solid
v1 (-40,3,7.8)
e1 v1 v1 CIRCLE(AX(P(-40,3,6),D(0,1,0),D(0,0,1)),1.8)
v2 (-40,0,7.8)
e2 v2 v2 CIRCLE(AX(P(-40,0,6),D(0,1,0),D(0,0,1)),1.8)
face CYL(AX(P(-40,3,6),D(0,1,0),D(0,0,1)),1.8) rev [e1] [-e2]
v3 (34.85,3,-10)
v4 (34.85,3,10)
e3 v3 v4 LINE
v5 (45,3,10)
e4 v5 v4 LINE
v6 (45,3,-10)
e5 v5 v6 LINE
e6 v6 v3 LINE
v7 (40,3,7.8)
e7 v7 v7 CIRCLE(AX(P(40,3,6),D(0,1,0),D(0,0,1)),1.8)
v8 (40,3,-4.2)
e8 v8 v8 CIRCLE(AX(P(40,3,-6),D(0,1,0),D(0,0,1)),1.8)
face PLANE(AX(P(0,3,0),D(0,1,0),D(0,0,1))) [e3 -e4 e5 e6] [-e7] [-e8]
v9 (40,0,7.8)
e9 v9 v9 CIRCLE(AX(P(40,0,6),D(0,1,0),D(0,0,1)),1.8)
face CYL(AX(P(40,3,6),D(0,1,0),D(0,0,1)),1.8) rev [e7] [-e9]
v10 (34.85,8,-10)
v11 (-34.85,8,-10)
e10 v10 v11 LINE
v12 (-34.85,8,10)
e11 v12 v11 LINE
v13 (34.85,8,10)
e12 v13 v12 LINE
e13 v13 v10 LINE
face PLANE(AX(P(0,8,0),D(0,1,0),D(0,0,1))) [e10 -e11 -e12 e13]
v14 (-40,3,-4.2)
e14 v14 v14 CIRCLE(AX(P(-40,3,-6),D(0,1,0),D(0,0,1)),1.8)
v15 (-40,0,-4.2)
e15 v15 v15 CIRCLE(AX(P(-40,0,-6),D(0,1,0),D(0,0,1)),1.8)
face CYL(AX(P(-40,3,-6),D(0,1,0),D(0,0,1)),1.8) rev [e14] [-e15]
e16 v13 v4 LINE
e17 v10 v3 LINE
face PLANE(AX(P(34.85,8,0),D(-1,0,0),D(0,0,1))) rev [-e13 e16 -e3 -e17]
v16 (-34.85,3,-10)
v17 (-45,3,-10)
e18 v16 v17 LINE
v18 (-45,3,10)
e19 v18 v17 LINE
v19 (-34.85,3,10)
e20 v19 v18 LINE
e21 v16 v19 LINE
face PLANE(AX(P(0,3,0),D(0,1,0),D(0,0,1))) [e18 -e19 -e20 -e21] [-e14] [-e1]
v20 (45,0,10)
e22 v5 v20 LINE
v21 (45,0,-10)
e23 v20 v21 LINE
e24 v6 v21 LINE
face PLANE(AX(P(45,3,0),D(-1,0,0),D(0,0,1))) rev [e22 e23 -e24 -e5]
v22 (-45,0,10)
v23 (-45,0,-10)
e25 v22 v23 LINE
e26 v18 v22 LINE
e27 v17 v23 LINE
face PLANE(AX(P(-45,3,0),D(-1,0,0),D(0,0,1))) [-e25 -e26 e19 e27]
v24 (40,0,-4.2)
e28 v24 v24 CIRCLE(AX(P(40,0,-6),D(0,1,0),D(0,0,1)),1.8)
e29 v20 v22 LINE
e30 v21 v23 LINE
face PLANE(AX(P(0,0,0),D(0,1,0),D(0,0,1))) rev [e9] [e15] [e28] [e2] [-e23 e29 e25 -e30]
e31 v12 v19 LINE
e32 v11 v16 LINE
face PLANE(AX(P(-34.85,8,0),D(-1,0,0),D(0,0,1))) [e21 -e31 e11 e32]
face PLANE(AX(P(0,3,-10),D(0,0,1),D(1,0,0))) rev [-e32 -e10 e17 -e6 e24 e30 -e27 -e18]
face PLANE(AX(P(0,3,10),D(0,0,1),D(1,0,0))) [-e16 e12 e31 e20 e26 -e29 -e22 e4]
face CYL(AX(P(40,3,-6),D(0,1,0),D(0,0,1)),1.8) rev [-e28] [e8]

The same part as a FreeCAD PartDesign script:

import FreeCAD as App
import Part
import Sketcher


def add_polygon(sketch, points):
    """Adds a closed chain of lines whose ends are joined by coincident constraints."""
    first, n = sketch.GeometryCount, len(points)
    for a, b in zip(points, points[1:] + points[:1]):
        sketch.addGeometry(Part.LineSegment(App.Vector(*a, 0), App.Vector(*b, 0)), False)
    for i in range(n):
        sketch.addConstraint(Sketcher.Constraint("Coincident", first + i, 2, first + (i + 1) % n, 1))

doc = App.newDocument("Part")
body = doc.addObject("PartDesign::Body", "Body")

# Sketch on XZ plane
sketch1 = body.newObject("Sketcher::SketchObject", "Sketch")
sketch1.AttachmentSupport = (doc.getObject("XZ_Plane"), [""])
sketch1.MapMode = "FlatFace"
add_polygon(sketch1, [(-45, -10), (-45, 10), (45, 10), (45, -10)])  # lines 0-3
sketch1.addConstraint(Sketcher.Constraint("Vertical", 0))
sketch1.addConstraint(Sketcher.Constraint("Horizontal", 1))
sketch1.addConstraint(Sketcher.Constraint("Vertical", 2))
sketch1.addConstraint(Sketcher.Constraint("Horizontal", 3))
sketch1.addConstraint(Sketcher.Constraint("Symmetric", 0, 2, 2, 2, -1, 1))
sketch1.addConstraint(Sketcher.Constraint("DistanceX", 1, 1, 1, 2, 90.0))
sketch1.addConstraint(Sketcher.Constraint("DistanceY", 0, 1, 0, 2, 20.0))
pad1 = body.newObject("PartDesign::Pad", "Pad")
pad1.Profile = sketch1
pad1.Length = 3
pad1.Reversed = True

# Sketch on XZ plane
sketch2 = body.newObject("Sketcher::SketchObject", "Sketch001")
sketch2.AttachmentSupport = (doc.getObject("XZ_Plane"), [""])
sketch2.MapMode = "FlatFace"
add_polygon(sketch2, [(-34.85, -10), (-34.85, 10), (34.85, 10), (34.85, -10)])  # lines 0-3
sketch2.addConstraint(Sketcher.Constraint("Vertical", 0))
sketch2.addConstraint(Sketcher.Constraint("Horizontal", 1))
sketch2.addConstraint(Sketcher.Constraint("Vertical", 2))
sketch2.addConstraint(Sketcher.Constraint("Horizontal", 3))
sketch2.addConstraint(Sketcher.Constraint("Symmetric", 0, 2, 2, 2, -1, 1))
sketch2.addConstraint(Sketcher.Constraint("DistanceY", 0, 1, 0, 2, 20.0))
sketch2.addConstraint(Sketcher.Constraint("DistanceX", 1, 1, 1, 2, 69.7))
pad2 = body.newObject("PartDesign::Pad", "Pad001")
pad2.Profile = sketch2
pad2.Length = 8
pad2.Reversed = True

# Sketch on XZ plane
sketch3 = body.newObject("Sketcher::SketchObject", "Sketch002")
sketch3.AttachmentSupport = (doc.getObject("XZ_Plane"), [""])
sketch3.MapMode = "FlatFace"
sketch3.AttachmentOffset = App.Placement(App.Vector(0, 0, -3), App.Rotation())
sketch3.addGeometry(Part.Circle(App.Vector(-40, -6, 0), App.Vector(0, 0, 1), 1.8), False)
sketch3.addGeometry(Part.Circle(App.Vector(-40, 6, 0), App.Vector(0, 0, 1), 1.8), False)
sketch3.addGeometry(Part.Circle(App.Vector(40, 6, 0), App.Vector(0, 0, 1), 1.8), False)
sketch3.addGeometry(Part.Circle(App.Vector(40, -6, 0), App.Vector(0, 0, 1), 1.8), False)
sketch3.addConstraint(Sketcher.Constraint("Equal", 0, 1))
sketch3.addConstraint(Sketcher.Constraint("Equal", 1, 2))
sketch3.addConstraint(Sketcher.Constraint("Equal", 2, 3))
sketch3.addConstraint(Sketcher.Constraint("Symmetric", 0, 3, 2, 3, -1, 1))
sketch3.addConstraint(Sketcher.Constraint("Symmetric", 1, 3, 3, 3, -1, 1))
sketch3.addConstraint(Sketcher.Constraint("Symmetric", 1, 3, 2, 3, -2))
sketch3.addConstraint(Sketcher.Constraint("Diameter", 0, 3.6))
sketch3.addConstraint(Sketcher.Constraint("DistanceX", 0, 3, -1, 1, 40.0))
sketch3.addConstraint(Sketcher.Constraint("DistanceY", 0, 3, -1, 1, 6.0))
doc.recompute()
hole = body.newObject("PartDesign::Hole", "Hole")
hole.Profile = sketch3
hole.ThreadType = "None"
hole.Diameter = 3.6
hole.DepthType = "Dimension"
hole.Depth = 10
hole.DrillPoint = "Angled"
hole.DrillPointAngle = 118
hole.Reversed = True

doc.recompute()
